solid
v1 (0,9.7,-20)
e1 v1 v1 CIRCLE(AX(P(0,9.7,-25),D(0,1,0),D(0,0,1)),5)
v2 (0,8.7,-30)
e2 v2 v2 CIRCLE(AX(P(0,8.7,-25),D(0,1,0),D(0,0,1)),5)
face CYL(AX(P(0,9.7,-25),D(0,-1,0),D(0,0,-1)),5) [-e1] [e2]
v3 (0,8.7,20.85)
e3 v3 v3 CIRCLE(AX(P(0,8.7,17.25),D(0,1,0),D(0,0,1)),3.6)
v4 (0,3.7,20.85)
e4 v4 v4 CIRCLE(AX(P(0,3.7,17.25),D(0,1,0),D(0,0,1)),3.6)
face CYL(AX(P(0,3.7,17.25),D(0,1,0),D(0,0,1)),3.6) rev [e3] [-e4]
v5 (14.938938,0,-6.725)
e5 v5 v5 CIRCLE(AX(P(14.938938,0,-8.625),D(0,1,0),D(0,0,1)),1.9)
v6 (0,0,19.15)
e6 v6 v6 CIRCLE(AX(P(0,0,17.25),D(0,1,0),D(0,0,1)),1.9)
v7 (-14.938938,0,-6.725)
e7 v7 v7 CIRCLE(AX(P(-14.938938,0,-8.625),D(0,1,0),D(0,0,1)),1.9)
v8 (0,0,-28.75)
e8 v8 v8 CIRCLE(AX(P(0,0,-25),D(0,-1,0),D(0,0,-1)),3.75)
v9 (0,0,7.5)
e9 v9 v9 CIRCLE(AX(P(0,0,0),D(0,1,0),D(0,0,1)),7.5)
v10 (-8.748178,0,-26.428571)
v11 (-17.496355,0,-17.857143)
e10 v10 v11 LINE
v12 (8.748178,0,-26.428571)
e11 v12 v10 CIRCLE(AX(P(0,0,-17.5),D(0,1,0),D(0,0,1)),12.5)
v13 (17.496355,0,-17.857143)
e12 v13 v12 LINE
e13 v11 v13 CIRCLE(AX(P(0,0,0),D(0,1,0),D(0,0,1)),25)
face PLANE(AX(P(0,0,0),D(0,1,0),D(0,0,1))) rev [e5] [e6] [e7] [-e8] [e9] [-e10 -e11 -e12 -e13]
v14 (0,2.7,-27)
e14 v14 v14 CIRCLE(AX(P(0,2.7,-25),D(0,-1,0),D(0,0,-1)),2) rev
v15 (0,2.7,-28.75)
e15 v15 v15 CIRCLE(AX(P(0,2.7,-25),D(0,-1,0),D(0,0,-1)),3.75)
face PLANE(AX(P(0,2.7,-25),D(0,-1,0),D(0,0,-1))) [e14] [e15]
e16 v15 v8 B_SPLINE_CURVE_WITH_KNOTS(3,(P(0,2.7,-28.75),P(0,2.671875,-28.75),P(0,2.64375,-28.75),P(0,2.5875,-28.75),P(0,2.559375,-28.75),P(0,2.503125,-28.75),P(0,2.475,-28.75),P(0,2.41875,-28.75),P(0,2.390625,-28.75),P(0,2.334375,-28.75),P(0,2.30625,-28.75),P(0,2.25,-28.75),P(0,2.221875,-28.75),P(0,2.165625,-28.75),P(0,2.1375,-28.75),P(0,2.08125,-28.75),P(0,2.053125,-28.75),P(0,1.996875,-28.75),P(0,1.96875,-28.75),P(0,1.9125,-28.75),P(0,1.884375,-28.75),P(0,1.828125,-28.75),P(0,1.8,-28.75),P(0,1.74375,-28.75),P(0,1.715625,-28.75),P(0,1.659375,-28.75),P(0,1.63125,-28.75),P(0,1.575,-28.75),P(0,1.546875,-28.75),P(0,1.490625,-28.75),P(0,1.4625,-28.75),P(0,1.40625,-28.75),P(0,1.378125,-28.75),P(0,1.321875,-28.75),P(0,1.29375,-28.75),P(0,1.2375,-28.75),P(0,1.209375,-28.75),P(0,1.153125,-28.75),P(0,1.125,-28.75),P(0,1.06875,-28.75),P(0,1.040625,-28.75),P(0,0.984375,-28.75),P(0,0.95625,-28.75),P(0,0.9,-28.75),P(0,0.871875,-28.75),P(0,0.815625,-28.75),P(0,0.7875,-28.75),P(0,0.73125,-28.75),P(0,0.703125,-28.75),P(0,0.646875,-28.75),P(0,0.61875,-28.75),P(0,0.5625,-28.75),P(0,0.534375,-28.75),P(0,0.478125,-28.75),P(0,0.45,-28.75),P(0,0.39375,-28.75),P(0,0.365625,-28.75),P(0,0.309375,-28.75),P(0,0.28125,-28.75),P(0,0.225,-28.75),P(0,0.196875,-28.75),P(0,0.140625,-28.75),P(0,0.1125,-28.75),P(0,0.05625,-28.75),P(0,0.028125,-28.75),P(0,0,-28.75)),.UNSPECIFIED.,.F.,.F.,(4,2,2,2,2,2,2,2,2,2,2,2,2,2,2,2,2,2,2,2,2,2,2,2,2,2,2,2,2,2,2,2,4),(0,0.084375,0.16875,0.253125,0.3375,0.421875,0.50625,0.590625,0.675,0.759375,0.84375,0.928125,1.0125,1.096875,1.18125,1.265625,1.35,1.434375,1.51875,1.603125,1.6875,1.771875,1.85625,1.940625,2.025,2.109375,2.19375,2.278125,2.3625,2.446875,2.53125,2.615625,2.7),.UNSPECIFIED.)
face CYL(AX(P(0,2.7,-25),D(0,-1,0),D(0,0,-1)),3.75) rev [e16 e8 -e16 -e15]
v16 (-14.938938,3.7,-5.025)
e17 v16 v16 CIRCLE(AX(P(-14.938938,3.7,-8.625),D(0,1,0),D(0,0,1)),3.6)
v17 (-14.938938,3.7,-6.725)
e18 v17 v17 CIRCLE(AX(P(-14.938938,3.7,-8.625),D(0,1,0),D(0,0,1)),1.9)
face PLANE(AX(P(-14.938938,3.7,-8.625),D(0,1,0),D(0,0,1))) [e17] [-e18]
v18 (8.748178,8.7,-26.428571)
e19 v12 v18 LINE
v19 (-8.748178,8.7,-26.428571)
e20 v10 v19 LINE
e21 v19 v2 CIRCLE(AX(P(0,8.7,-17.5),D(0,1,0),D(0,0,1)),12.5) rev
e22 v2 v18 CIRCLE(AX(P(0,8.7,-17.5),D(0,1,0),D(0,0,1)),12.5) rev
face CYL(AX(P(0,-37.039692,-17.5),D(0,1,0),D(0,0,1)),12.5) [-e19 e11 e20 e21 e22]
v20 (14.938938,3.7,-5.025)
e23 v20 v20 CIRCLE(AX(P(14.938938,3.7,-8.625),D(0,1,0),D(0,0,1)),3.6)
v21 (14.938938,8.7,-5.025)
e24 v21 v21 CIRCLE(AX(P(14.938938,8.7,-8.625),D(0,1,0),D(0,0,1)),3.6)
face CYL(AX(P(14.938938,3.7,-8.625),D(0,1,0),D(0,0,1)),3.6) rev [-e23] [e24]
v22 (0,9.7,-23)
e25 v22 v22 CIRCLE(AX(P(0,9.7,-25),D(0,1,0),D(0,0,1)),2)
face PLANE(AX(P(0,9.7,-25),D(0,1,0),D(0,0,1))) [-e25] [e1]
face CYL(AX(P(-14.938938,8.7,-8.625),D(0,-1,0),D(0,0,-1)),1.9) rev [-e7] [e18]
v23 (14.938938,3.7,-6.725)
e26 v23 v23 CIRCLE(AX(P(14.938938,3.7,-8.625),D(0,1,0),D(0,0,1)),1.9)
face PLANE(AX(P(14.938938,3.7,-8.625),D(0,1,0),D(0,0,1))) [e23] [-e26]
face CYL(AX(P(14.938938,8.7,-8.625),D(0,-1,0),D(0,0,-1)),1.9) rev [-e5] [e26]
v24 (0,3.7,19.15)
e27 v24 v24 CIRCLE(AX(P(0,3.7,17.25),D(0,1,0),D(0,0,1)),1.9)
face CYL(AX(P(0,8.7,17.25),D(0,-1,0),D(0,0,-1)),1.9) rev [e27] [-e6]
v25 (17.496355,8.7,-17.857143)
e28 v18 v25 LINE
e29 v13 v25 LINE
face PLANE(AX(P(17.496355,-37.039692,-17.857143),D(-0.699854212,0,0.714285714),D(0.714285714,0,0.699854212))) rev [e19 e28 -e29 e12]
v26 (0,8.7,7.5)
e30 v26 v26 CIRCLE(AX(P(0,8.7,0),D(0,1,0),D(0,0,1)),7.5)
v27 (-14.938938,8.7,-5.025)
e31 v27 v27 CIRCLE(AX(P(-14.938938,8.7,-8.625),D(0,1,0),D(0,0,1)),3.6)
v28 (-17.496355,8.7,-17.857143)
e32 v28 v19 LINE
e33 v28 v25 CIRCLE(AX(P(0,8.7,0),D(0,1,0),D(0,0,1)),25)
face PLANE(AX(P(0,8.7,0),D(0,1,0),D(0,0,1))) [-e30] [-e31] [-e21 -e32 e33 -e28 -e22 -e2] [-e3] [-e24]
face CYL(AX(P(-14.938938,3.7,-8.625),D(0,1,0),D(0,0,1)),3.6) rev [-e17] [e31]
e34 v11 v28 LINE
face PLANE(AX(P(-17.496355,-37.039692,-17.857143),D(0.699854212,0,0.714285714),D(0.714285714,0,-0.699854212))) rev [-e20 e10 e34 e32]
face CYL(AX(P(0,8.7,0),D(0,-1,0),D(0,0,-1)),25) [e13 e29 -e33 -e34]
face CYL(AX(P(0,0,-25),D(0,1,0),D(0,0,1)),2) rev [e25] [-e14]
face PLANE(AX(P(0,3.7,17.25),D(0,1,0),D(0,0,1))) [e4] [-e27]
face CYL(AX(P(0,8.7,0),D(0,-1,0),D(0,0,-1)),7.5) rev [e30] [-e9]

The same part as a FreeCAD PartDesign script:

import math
import FreeCAD as App
import Part
import Sketcher
Q = App.Units.Quantity

doc = App.newDocument("Part")
body = doc.addObject("PartDesign::Body", "Body")

sketch1 = body.newObject("Sketcher::SketchObject", "Sketch")
sketch1.AttachmentSupport = (doc.getObject("XZ_Plane"), [""])
sketch1.MapMode = "FlatFace"
sketch1.addGeometry([
    Part.Circle(App.Vector(0, 0, 0), App.Vector(0, 0, 1), 25),
    Part.Circle(App.Vector(-14.938938, -8.625, 0), App.Vector(0, 0, 1), 1.9),
    Part.Circle(App.Vector(0, 0, 0), App.Vector(0, 0, 1), 7.5),
    Part.Circle(App.Vector(14.938938, -8.625, 0), App.Vector(0, 0, 1), 1.9),
    Part.Circle(App.Vector(0, 17.25, 0), App.Vector(0, 0, 1), 1.9),
], False)
sketch1.addConstraint([
    Sketcher.Constraint("Coincident", 0, 3, -1, 1),
    Sketcher.Constraint("Coincident", 2, 3, -1, 1),
    Sketcher.Constraint("Equal", 1, 3),
    Sketcher.Constraint("Equal", 3, 4),
    Sketcher.Constraint("Symmetric", 1, 3, 3, 3, -2),
    Sketcher.Constraint("PointOnObject", 4, 3, -2),
    Sketcher.Constraint("Diameter", 0, Q("50 mm")),
    Sketcher.Constraint("Diameter", 2, Q("15 mm")),
    Sketcher.Constraint("Diameter", 1, Q("3.8 mm")),
    Sketcher.Constraint("DistanceY", -1, 1, 4, 3, Q("17.25 mm")),
    Sketcher.Constraint("DistanceY", 1, 3, -1, 1, Q("8.625 mm")),
    Sketcher.Constraint("DistanceX", 1, 3, -1, 1, Q("14.938938 mm")),
])
pad1 = body.newObject("PartDesign::Pad", "Pad")
pad1.Profile = sketch1
pad1.Length = 8.7
pad1.Reversed = True

sketch2 = body.newObject("Sketcher::SketchObject", "Sketch001")
sketch2.AttachmentSupport = (doc.getObject("XZ_Plane"), [""])
sketch2.MapMode = "FlatFace"
sketch2.AttachmentOffset = App.Placement(App.Vector(0, 0, -8.7), App.Rotation())
sketch2.addGeometry([
    Part.Circle(App.Vector(0, 17.25, 0), App.Vector(0, 0, 1), 3.6),
    Part.Circle(App.Vector(-14.938938, -8.625, 0), App.Vector(0, 0, 1), 3.6),
    Part.Circle(App.Vector(14.938938, -8.625, 0), App.Vector(0, 0, 1), 3.6),
], False)
sketch2.addConstraint([
    Sketcher.Constraint("Equal", 0, 1),
    Sketcher.Constraint("Equal", 1, 2),
    Sketcher.Constraint("Symmetric", 1, 3, 2, 3, -2),
    Sketcher.Constraint("PointOnObject", 0, 3, -2),
    Sketcher.Constraint("Diameter", 0, Q("7.2 mm")),
    Sketcher.Constraint("DistanceY", -1, 1, 0, 3, Q("17.25 mm")),
    Sketcher.Constraint("DistanceY", 1, 3, -1, 1, Q("8.625 mm")),
    Sketcher.Constraint("DistanceX", 1, 3, -1, 1, Q("14.938938 mm")),
])
pocket1 = body.newObject("PartDesign::Pocket", "Pocket")
pocket1.Profile = sketch2
pocket1.Length = 5
pocket1.Reversed = True

sketch3 = body.newObject("Sketcher::SketchObject", "Sketch002")
sketch3.AttachmentSupport = (doc.getObject("XZ_Plane"), [""])
sketch3.MapMode = "FlatFace"
sketch3.addGeometry([
    Part.LineSegment(App.Vector(-8.748178, -26.428571, 0), App.Vector(-17.496355, -17.857143, 0)),
    Part.ArcOfCircle(Part.Circle(App.Vector(0, 0, 0), App.Vector(0, 0, 1), 25), math.radians(-134.415309), math.radians(-45.584691)),
    Part.LineSegment(App.Vector(17.496355, -17.857143, 0), App.Vector(8.748178, -26.428571, 0)),
    Part.ArcOfCircle(Part.Circle(App.Vector(0, -17.5, 0), App.Vector(0, 0, 1), 12.5), math.radians(-134.415309), math.radians(-45.584691)),
], False)
sketch3.addConstraint([
    Sketcher.Constraint("Tangent", 0, 2, 1, 1),
    Sketcher.Constraint("Tangent", 1, 2, 2, 1),
    Sketcher.Constraint("Tangent", 2, 2, 3, 2),
    Sketcher.Constraint("Tangent", 3, 1, 0, 1),
    Sketcher.Constraint("Coincident", 1, 3, -1, 1),
    Sketcher.Constraint("PointOnObject", 3, 3, -2),
    Sketcher.Constraint("Radius", 1, Q("25 mm")),
    Sketcher.Constraint("Radius", 3, Q("12.5 mm")),
    Sketcher.Constraint("DistanceY", 3, 3, -1, 1, Q("17.5 mm")),
])
pad2 = body.newObject("PartDesign::Pad", "Pad001")
pad2.Profile = sketch3
pad2.Length = 8.7
pad2.Reversed = True

sketch4 = body.newObject("Sketcher::SketchObject", "Sketch003")
sketch4.AttachmentSupport = (doc.getObject("XZ_Plane"), [""])
sketch4.MapMode = "FlatFace"
sketch4.AttachmentOffset = App.Placement(App.Vector(0, 0, -8.7), App.Rotation())
sketch4.addGeometry(Part.Circle(App.Vector(0, -25, 0), App.Vector(0, 0, 1), 2), False)
sketch4.addConstraint([
    Sketcher.Constraint("PointOnObject", 0, 3, -2),
    Sketcher.Constraint("Diameter", 0, Q("4 mm")),
    Sketcher.Constraint("DistanceY", 0, 3, -1, 1, Q("25 mm")),
])
pocket2 = body.newObject("PartDesign::Pocket", "Pocket001")
pocket2.Profile = sketch4
pocket2.Type = "ThroughAll"
pocket2.Reversed = True

sketch5 = body.newObject("Sketcher::SketchObject", "Sketch004")
sketch5.AttachmentSupport = (doc.getObject("XZ_Plane"), [""])
sketch5.MapMode = "FlatFace"
sketch5.AttachmentOffset = App.Placement(App.Vector(0, 0, -9.7), App.Rotation())
sketch5.addGeometry([
    Part.Circle(App.Vector(0, -25, 0), App.Vector(0, 0, 1), 5),
    Part.Circle(App.Vector(0, -25, 0), App.Vector(0, 0, 1), 2),
], False)
sketch5.addConstraint([
    Sketcher.Constraint("Coincident", 1, 3, 0, 3),
    Sketcher.Constraint("PointOnObject", 0, 3, -2),
    Sketcher.Constraint("Diameter", 0, Q("10 mm")),
    Sketcher.Constraint("Diameter", 1, Q("4 mm")),
    Sketcher.Constraint("DistanceY", 0, 3, -1, 1, Q("25 mm")),
])
pad3 = body.newObject("PartDesign::Pad", "Pad002")
pad3.Profile = sketch5
pad3.Length = 1

sketch6 = body.newObject("Sketcher::SketchObject", "Sketch005")
sketch6.AttachmentSupport = (doc.getObject("XZ_Plane"), [""])
sketch6.MapMode = "FlatFace"
sketch6.addGeometry(Part.Circle(App.Vector(0, -25, 0), App.Vector(0, 0, 1), 3.75), False)
sketch6.addConstraint([
    Sketcher.Constraint("PointOnObject", 0, 3, -2),
    Sketcher.Constraint("Diameter", 0, Q("7.5 mm")),
    Sketcher.Constraint("DistanceY", 0, 3, -1, 1, Q("25 mm")),
])
pocket3 = body.newObject("PartDesign::Pocket", "Pocket002")
pocket3.Profile = sketch6
pocket3.Length = 2.7

doc.recompute()
